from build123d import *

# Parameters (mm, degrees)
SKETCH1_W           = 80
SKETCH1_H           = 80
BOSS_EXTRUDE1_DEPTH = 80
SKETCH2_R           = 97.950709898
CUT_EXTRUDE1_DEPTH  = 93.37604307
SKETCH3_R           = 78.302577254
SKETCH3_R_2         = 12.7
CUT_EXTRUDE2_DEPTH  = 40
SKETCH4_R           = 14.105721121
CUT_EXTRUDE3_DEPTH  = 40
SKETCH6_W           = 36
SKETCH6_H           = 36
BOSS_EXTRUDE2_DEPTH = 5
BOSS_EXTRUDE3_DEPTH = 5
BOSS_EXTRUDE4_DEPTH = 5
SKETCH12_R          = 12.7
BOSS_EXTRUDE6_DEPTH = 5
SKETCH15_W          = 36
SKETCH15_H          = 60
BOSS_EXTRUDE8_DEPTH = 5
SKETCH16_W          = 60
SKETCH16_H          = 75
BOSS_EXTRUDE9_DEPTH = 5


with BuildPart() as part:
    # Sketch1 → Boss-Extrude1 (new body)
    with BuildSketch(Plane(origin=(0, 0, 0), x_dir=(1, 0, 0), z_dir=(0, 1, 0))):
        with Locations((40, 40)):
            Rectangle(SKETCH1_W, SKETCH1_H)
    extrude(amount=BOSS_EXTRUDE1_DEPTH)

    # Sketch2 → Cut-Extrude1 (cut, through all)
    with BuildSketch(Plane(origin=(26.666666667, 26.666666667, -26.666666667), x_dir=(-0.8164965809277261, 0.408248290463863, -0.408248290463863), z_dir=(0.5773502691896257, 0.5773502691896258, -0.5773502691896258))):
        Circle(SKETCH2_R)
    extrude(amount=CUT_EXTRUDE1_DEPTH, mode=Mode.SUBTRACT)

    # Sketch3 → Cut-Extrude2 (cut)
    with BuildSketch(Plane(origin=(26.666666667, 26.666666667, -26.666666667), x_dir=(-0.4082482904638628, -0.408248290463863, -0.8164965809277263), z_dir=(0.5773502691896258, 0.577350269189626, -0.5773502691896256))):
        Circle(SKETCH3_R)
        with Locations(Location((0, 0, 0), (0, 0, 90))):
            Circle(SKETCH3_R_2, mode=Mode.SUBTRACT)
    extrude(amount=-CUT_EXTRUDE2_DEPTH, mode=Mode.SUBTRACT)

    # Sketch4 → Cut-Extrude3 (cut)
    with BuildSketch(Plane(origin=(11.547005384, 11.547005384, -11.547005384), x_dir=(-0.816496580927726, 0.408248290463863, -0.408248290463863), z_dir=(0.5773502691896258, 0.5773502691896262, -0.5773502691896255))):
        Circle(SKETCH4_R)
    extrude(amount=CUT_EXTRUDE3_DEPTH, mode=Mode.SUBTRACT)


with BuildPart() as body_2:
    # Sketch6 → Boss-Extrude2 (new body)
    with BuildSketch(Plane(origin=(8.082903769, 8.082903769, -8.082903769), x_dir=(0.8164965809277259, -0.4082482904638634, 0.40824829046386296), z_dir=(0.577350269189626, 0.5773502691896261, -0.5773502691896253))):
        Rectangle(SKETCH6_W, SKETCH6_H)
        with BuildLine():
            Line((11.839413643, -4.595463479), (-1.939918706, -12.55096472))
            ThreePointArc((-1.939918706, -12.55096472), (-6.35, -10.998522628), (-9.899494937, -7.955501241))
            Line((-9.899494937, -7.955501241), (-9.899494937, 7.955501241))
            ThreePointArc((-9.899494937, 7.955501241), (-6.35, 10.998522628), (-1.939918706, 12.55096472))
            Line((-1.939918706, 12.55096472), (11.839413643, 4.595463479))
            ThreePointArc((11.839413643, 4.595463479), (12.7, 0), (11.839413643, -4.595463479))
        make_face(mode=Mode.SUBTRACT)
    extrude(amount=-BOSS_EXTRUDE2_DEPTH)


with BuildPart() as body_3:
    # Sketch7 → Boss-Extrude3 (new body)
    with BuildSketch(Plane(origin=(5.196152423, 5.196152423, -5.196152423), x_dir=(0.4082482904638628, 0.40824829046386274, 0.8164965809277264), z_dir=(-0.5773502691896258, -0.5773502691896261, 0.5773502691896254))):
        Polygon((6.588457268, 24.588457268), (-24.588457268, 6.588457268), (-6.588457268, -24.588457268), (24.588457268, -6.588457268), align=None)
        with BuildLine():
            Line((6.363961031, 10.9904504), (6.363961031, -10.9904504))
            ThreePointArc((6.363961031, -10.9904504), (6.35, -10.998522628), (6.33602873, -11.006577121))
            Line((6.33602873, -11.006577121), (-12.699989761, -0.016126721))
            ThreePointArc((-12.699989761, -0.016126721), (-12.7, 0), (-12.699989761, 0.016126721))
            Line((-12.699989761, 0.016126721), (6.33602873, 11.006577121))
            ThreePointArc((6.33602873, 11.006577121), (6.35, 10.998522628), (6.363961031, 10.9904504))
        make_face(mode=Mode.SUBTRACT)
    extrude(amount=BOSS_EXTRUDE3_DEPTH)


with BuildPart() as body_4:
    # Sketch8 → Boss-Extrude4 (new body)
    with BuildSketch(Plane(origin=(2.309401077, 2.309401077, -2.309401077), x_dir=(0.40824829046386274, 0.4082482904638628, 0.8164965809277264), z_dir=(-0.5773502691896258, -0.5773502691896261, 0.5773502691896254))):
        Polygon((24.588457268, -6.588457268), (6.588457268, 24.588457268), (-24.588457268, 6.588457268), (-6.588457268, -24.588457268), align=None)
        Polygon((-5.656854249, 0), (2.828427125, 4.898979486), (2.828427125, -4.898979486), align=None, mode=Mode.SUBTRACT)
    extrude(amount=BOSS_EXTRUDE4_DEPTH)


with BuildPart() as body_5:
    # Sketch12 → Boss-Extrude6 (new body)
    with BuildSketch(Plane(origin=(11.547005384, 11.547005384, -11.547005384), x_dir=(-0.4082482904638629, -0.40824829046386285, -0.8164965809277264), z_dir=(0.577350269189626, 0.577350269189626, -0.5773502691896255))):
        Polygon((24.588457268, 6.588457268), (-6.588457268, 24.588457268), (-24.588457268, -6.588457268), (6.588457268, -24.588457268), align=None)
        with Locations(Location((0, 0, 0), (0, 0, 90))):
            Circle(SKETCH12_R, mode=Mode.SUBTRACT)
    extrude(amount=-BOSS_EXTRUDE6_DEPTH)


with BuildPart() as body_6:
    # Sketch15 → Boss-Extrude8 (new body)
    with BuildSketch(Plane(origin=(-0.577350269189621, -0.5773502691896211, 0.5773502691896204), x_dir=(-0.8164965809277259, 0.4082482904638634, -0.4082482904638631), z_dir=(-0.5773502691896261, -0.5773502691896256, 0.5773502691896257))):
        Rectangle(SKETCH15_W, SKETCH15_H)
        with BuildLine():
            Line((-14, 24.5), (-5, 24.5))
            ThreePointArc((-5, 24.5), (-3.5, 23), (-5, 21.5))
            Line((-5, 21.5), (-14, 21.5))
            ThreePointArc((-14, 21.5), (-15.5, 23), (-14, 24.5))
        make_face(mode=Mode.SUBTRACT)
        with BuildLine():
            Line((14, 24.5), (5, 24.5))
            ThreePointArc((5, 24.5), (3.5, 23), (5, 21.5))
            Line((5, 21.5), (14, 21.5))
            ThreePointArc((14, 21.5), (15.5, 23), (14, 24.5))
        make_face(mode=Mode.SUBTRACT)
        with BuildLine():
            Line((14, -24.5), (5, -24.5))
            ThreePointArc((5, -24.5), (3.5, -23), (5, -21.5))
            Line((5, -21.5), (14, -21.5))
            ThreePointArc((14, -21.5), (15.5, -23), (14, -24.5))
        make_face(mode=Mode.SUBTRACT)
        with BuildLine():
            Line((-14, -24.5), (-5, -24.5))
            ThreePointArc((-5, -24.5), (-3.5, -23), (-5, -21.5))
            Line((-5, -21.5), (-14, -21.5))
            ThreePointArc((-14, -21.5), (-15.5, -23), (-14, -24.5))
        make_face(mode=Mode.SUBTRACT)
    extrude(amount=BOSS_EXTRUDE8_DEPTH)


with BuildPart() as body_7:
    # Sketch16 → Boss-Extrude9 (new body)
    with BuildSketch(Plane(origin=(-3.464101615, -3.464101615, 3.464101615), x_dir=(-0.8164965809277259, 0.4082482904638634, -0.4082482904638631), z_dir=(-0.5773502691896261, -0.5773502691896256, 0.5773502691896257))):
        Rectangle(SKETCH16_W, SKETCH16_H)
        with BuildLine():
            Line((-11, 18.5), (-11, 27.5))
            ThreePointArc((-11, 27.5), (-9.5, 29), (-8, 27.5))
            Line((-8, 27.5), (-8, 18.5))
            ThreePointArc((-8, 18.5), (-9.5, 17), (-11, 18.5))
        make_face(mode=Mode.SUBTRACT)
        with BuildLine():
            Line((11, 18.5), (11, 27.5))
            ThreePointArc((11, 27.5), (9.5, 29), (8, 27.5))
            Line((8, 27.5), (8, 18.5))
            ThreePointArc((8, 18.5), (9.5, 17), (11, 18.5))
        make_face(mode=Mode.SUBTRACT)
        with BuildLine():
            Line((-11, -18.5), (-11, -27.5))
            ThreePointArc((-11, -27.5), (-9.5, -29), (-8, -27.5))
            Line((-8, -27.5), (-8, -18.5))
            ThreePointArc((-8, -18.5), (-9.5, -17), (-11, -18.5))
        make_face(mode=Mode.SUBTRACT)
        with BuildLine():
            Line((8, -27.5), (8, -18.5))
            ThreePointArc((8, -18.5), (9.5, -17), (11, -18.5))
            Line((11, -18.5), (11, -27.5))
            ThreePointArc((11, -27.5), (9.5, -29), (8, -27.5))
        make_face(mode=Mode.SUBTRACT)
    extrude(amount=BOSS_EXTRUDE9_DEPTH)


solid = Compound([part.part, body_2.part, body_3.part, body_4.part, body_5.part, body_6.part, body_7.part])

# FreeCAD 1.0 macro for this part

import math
import FreeCAD as App
import Part
import Sketcher

V = App.Vector
Q = App.Units.Quantity

doc = App.newDocument("Part")
body = doc.addObject("PartDesign::Body", "Body")

# Sketch on XZ plane
sketch1 = body.newObject("Sketcher::SketchObject", "Sketch")
sketch1.AttachmentSupport = (doc.getObject("XZ_Plane"), [""])
sketch1.MapMode = "FlatFace"
sketch1.addGeometry(Part.LineSegment(V(0, -80, 0), V(0, 0, 0)), False)
sketch1.addGeometry(Part.LineSegment(V(0, 0, 0), V(80, 0, 0)), False)
sketch1.addGeometry(Part.LineSegment(V(80, 0, 0), V(80, -80, 0)), False)
sketch1.addGeometry(Part.LineSegment(V(80, -80, 0), V(0, -80, 0)), False)
sketch1.addConstraint(Sketcher.Constraint("Coincident", 0, 2, 1, 1))
sketch1.addConstraint(Sketcher.Constraint("Coincident", 1, 2, 2, 1))
sketch1.addConstraint(Sketcher.Constraint("Coincident", 2, 2, 3, 1))
sketch1.addConstraint(Sketcher.Constraint("Coincident", 3, 2, 0, 1))
sketch1.addConstraint(Sketcher.Constraint("Vertical", 0))
sketch1.addConstraint(Sketcher.Constraint("Horizontal", 1))
sketch1.addConstraint(Sketcher.Constraint("Vertical", 2))
sketch1.addConstraint(Sketcher.Constraint("Horizontal", 3))
sketch1.addConstraint(Sketcher.Constraint("Coincident", 0, 2, -1, 1))
sketch1.addConstraint(Sketcher.Constraint("Equal", 3, 0))
sketch1.addConstraint(Sketcher.Constraint("DistanceX", 1, 1, 1, 2, Q("80 mm")))
pad1 = body.newObject("PartDesign::Pad", "Pad")
pad1.Profile = sketch1
pad1.Length = 80
pad1.Reversed = True

# Sketch on an angled plane
sketch2 = body.newObject("Sketcher::SketchObject", "Sketch001")
sketch2.Placement = App.Placement(V(26.666667, 26.666667, -26.666667), App.Rotation(V(-0.816496581, 0.40824829, -0.40824829), V(0, 0.707106781, 0.707106781), V(0.577350269, 0.577350269, -0.577350269), "ZXY"))
sketch2.addGeometry(Part.Circle(V(0, 0, 0), V(0, 0, 1), 98), False)
sketch2.addConstraint(Sketcher.Constraint("Coincident", 0, 3, -1, 1))
sketch2.addConstraint(Sketcher.Constraint("Diameter", 0, Q("195.90142 mm")))
pocket1 = body.newObject("PartDesign::Pocket", "Pocket")
pocket1.Profile = sketch2
pocket1.Type = "ThroughAll"
pocket1.Reversed = True

# Sketch on an angled plane
sketch3 = body.newObject("Sketcher::SketchObject", "Sketch002")
sketch3.Placement = App.Placement(V(26.666667, 26.666667, -26.666667), App.Rotation(V(-0.40824829, -0.40824829, -0.816496581), V(-0.707106781, 0.707106781, 0), V(0.577350269, 0.577350269, -0.577350269), "ZXY"))
sketch3.addGeometry(Part.Circle(V(0, 0, 0), V(0, 0, 1), 78), False)
sketch3.addGeometry(Part.Circle(V(0, 0, 0), V(0, 0, 1), 13), False)
sketch3.addConstraint(Sketcher.Constraint("Coincident", 0, 3, -1, 1))
sketch3.addConstraint(Sketcher.Constraint("Coincident", 1, 3, -1, 1))
sketch3.addConstraint(Sketcher.Constraint("Diameter", 1, Q("25.4 mm")))
sketch3.addConstraint(Sketcher.Constraint("Diameter", 0, Q("156.605155 mm")))
pocket2 = body.newObject("PartDesign::Pocket", "Pocket001")
pocket2.Profile = sketch3
pocket2.Length = 40

# Sketch on an angled plane
sketch4 = body.newObject("Sketcher::SketchObject", "Sketch003")
sketch4.Placement = App.Placement(V(11.547005, 11.547005, -11.547005), App.Rotation(V(-0.816496581, 0.40824829, -0.40824829), V(0, 0.707106781, 0.707106781), V(0.577350269, 0.577350269, -0.577350269), "ZXY"))
sketch4.addGeometry(Part.Circle(V(0, 0, 0), V(0, 0, 1), 14), False)
sketch4.addConstraint(Sketcher.Constraint("Coincident", 0, 3, -1, 1))
sketch4.addConstraint(Sketcher.Constraint("Diameter", 0, Q("28.211442 mm")))
pocket3 = body.newObject("PartDesign::Pocket", "Pocket002")
pocket3.Profile = sketch4
pocket3.Length = 40
pocket3.Reversed = True
body2 = doc.addObject("PartDesign::Body", "Body001")

# Sketch on an angled plane
sketch5 = body2.newObject("Sketcher::SketchObject", "Sketch004")
sketch5.Placement = App.Placement(V(8.082904, 8.082904, -8.082904), App.Rotation(V(0.816496581, -0.40824829, 0.40824829), V(0, -0.707106781, -0.707106781), V(0.577350269, 0.577350269, -0.577350269), "ZXY"))
sketch5.addGeometry(Part.LineSegment(V(-18, 18, 0), V(-18, -18, 0)), False)
sketch5.addGeometry(Part.LineSegment(V(-18, -18, 0), V(18, -18, 0)), False)
sketch5.addGeometry(Part.LineSegment(V(18, -18, 0), V(18, 18, 0)), False)
sketch5.addGeometry(Part.LineSegment(V(18, 18, 0), V(-18, 18, 0)), False)
sketch5.addGeometry(Part.ArcOfCircle(Part.Circle(V(0, 0, 0), V(0, 0, 1), 13), math.radians(-21), math.radians(21)), False)
sketch5.addGeometry(Part.LineSegment(V(12, -5, 0), V(-2, -13, 0)), False)
sketch5.addGeometry(Part.ArcOfCircle(Part.Circle(V(0, 0, 0), V(0, 0, 1), 13), math.radians(-141), math.radians(-99)), False)
sketch5.addGeometry(Part.LineSegment(V(-10, -8, 0), V(-10, 8, 0)), False)
sketch5.addGeometry(Part.ArcOfCircle(Part.Circle(V(0, 0, 0), V(0, 0, 1), 13), math.radians(99), math.radians(141)), False)
sketch5.addGeometry(Part.LineSegment(V(-2, 13, 0), V(12, 5, 0)), False)
sketch5.addConstraint(Sketcher.Constraint("Coincident", 0, 2, 1, 1))
sketch5.addConstraint(Sketcher.Constraint("Coincident", 1, 2, 2, 1))
sketch5.addConstraint(Sketcher.Constraint("Coincident", 2, 2, 3, 1))
sketch5.addConstraint(Sketcher.Constraint("Coincident", 3, 2, 0, 1))
sketch5.addConstraint(Sketcher.Constraint("Coincident", 4, 1, 5, 1))
sketch5.addConstraint(Sketcher.Constraint("Coincident", 5, 2, 6, 2))
sketch5.addConstraint(Sketcher.Constraint("Coincident", 6, 1, 7, 1))
sketch5.addConstraint(Sketcher.Constraint("Coincident", 7, 2, 8, 2))
sketch5.addConstraint(Sketcher.Constraint("Coincident", 8, 1, 9, 1))
sketch5.addConstraint(Sketcher.Constraint("Coincident", 9, 2, 4, 2))
sketch5.addConstraint(Sketcher.Constraint("Vertical", 0))
sketch5.addConstraint(Sketcher.Constraint("Horizontal", 1))
sketch5.addConstraint(Sketcher.Constraint("Vertical", 2))
sketch5.addConstraint(Sketcher.Constraint("Horizontal", 3))
sketch5.addConstraint(Sketcher.Constraint("Vertical", 7))
sketch5.addConstraint(Sketcher.Constraint("Coincident", 4, 3, -1, 1))
sketch5.addConstraint(Sketcher.Constraint("Coincident", 6, 3, -1, 1))
sketch5.addConstraint(Sketcher.Constraint("Coincident", 8, 3, -1, 1))
sketch5.addConstraint(Sketcher.Constraint("Equal", 4, 6))
sketch5.addConstraint(Sketcher.Constraint("Equal", 6, 8))
sketch5.addConstraint(Sketcher.Constraint("Symmetric", 0, 2, 2, 2, -1, 1))
sketch5.addConstraint(Sketcher.Constraint("Vertical", 5, 2, 8, 1))
sketch5.addConstraint(Sketcher.Constraint("Vertical", 4, 1, 9, 2))
sketch5.addConstraint(Sketcher.Constraint("Equal", 3, 0))
sketch5.addConstraint(Sketcher.Constraint("Radius", 4, Q("12.7 mm")))
sketch5.addConstraint(Sketcher.Constraint("DistanceX", 1, 1, 1, 2, Q("36 mm")))
sketch5.addConstraint(Sketcher.Constraint("Angle", 5, Q("-150 deg")))
sketch5.addConstraint(Sketcher.Constraint("DistanceY", 6, 1, -1, 1, Q("7.955501 mm")))
sketch5.addConstraint(Sketcher.Constraint("DistanceY", 5, 2, 4, 1, Q("7.955501 mm")))
pad2 = body2.newObject("PartDesign::Pad", "Pad001")
pad2.Profile = sketch5
pad2.Length = 5
pad2.Reversed = True
body3 = doc.addObject("PartDesign::Body", "Body002")

# Sketch on an angled plane
sketch6 = body3.newObject("Sketcher::SketchObject", "Sketch005")
sketch6.Placement = App.Placement(V(5.196152, 5.196152, -5.196152), App.Rotation(V(0.40824829, 0.40824829, 0.816496581), V(-0.707106781, 0.707106781, 0), V(-0.577350269, -0.577350269, 0.577350269), "ZXY"))
sketch6.addGeometry(Part.LineSegment(V(6.588457, 24.588457, 0), V(-24.588457, 6.588457, 0)), False)
sketch6.addGeometry(Part.LineSegment(V(-24.588457, 6.588457, 0), V(-6.588457, -24.588457, 0)), False)
sketch6.addGeometry(Part.LineSegment(V(-6.588457, -24.588457, 0), V(24.588457, -6.588457, 0)), False)
sketch6.addGeometry(Part.LineSegment(V(24.588457, -6.588457, 0), V(6.588457, 24.588457, 0)), False)
sketch6.addGeometry(Part.ArcOfCircle(Part.Circle(V(0.000127, 0.00022, 0), V(0, 0, 1), 12.699746), math.radians(59.927244), math.radians(60.072758)), False)
sketch6.addGeometry(Part.LineSegment(V(6.363961, 10.99045, 0), V(6.363961, -10.99045, 0)), False)
sketch6.addGeometry(Part.ArcOfCircle(Part.Circle(V(0.000127, -0.00022, 0), V(0, 0, 1), 12.699746), math.radians(-60.072758), math.radians(-59.927244)), False)
sketch6.addGeometry(Part.LineSegment(V(6.336029, -11.006577, 0), V(-12.69999, -0.016127, 0)), False)
sketch6.addGeometry(Part.ArcOfCircle(Part.Circle(V(0.000031, 0, 0), V(0, 0, 1), 12.700031), math.radians(179.927245), math.radians(180.072755)), False)
sketch6.addGeometry(Part.LineSegment(V(-12.69999, 0.016127, 0), V(6.336029, 11.006577, 0)), False)
sketch6.addConstraint(Sketcher.Constraint("Coincident", 0, 2, 1, 1))
sketch6.addConstraint(Sketcher.Constraint("Coincident", 1, 2, 2, 1))
sketch6.addConstraint(Sketcher.Constraint("Coincident", 2, 2, 3, 1))
sketch6.addConstraint(Sketcher.Constraint("Coincident", 3, 2, 0, 1))
sketch6.addConstraint(Sketcher.Constraint("Coincident", 4, 1, 5, 1))
sketch6.addConstraint(Sketcher.Constraint("Coincident", 5, 2, 6, 2))
sketch6.addConstraint(Sketcher.Constraint("Coincident", 6, 1, 7, 1))
sketch6.addConstraint(Sketcher.Constraint("Coincident", 7, 2, 8, 2))
sketch6.addConstraint(Sketcher.Constraint("Coincident", 8, 1, 9, 1))
sketch6.addConstraint(Sketcher.Constraint("Coincident", 9, 2, 4, 2))
sketch6.addConstraint(Sketcher.Constraint("Vertical", 5))
sketch6.addConstraint(Sketcher.Constraint("Equal", 4, 6))
sketch6.addConstraint(Sketcher.Constraint("Symmetric", 0, 2, 2, 2, -1, 1))
sketch6.addConstraint(Sketcher.Constraint("Symmetric", 1, 2, 3, 2, -1, 1))
sketch6.addConstraint(Sketcher.Constraint("Symmetric", 4, 3, 6, 3, -1))
sketch6.addConstraint(Sketcher.Constraint("PointOnObject", 8, 3, -1))
sketch6.addConstraint(Sketcher.Constraint("Perpendicular", 0, 1))
sketch6.addConstraint(Sketcher.Constraint("Perpendicular", 3, 9))
sketch6.addConstraint(Sketcher.Constraint("Vertical", 6, 1, 9, 2))
sketch6.addConstraint(Sketcher.Constraint("Equal", 0, 1))
sketch6.addConstraint(Sketcher.Constraint("Equal", 7, 9))
sketch6.addConstraint(Sketcher.Constraint("Angle", 0, Q("-150 deg")))
sketch6.addConstraint(Sketcher.Constraint("Distance", 0, Q("36 mm")))
sketch6.addConstraint(Sketcher.Constraint("Radius", 8, Q("12.700031 mm")))
sketch6.addConstraint(Sketcher.Constraint("DistanceY", 5, 2, 5, 1, Q("21.980901 mm")))
sketch6.addConstraint(Sketcher.Constraint("Radius", 4, Q("12.699746 mm")))
sketch6.addConstraint(Sketcher.Constraint("Distance", 7, Q("21.980901 mm")))
sketch6.addConstraint(Sketcher.Constraint("DistanceX", 6, 3, 6, 1, Q("6.335902 mm")))
sketch6.addConstraint(Sketcher.Constraint("DistanceY", -1, 1, 4, 3, Q("0.00022 mm")))
sketch6.addConstraint(Sketcher.Constraint("DistanceX", -1, 1, 4, 1, Q("6.363961 mm")))
pad3 = body3.newObject("PartDesign::Pad", "Pad002")
pad3.Profile = sketch6
pad3.Length = 5
body4 = doc.addObject("PartDesign::Body", "Body003")

# Sketch on an angled plane
sketch7 = body4.newObject("Sketcher::SketchObject", "Sketch006")
sketch7.Placement = App.Placement(V(2.309401, 2.309401, -2.309401), App.Rotation(V(0.40824829, 0.40824829, 0.816496581), V(-0.707106781, 0.707106781, 0), V(-0.577350269, -0.577350269, 0.577350269), "ZXY"))
sketch7.addGeometry(Part.LineSegment(V(25, -7, 0), V(7, 25, 0)), False)
sketch7.addGeometry(Part.LineSegment(V(7, 25, 0), V(-25, 7, 0)), False)
sketch7.addGeometry(Part.LineSegment(V(-25, 7, 0), V(-7, -25, 0)), False)
sketch7.addGeometry(Part.LineSegment(V(-7, -25, 0), V(25, -7, 0)), False)
sketch7.addGeometry(Part.LineSegment(V(3, -5, 0), V(-6, 0, 0)), False)
sketch7.addGeometry(Part.LineSegment(V(-6, 0, 0), V(3, 5, 0)), False)
sketch7.addGeometry(Part.LineSegment(V(3, 5, 0), V(3, -5, 0)), False)
sketch7.addConstraint(Sketcher.Constraint("Coincident", 0, 2, 1, 1))
sketch7.addConstraint(Sketcher.Constraint("Coincident", 1, 2, 2, 1))
sketch7.addConstraint(Sketcher.Constraint("Coincident", 2, 2, 3, 1))
sketch7.addConstraint(Sketcher.Constraint("Coincident", 3, 2, 0, 1))
sketch7.addConstraint(Sketcher.Constraint("Coincident", 4, 2, 5, 1))
sketch7.addConstraint(Sketcher.Constraint("Coincident", 5, 2, 6, 1))
sketch7.addConstraint(Sketcher.Constraint("Coincident", 6, 2, 4, 1))
sketch7.addConstraint(Sketcher.Constraint("Vertical", 6))
sketch7.addConstraint(Sketcher.Constraint("Symmetric", 0, 2, 2, 2, -1, 1))
sketch7.addConstraint(Sketcher.Constraint("Symmetric", 1, 2, 3, 2, -1, 1))
sketch7.addConstraint(Sketcher.Constraint("PointOnObject", 4, 2, -1))
sketch7.addConstraint(Sketcher.Constraint("Perpendicular", 0, 1))
sketch7.addConstraint(Sketcher.Constraint("Parallel", 3, 5))
sketch7.addConstraint(Sketcher.Constraint("Equal", 0, 1))
sketch7.addConstraint(Sketcher.Constraint("Equal", 4, 5))
sketch7.addConstraint(Sketcher.Constraint("Angle", 0, Q("120 deg")))
sketch7.addConstraint(Sketcher.Constraint("Distance", 0, Q("36 mm")))
sketch7.addConstraint(Sketcher.Constraint("DistanceY", 6, 2, 6, 1, Q("9.797959 mm")))
sketch7.addConstraint(Sketcher.Constraint("DistanceX", 4, 2, 0, 2, Q("12.245312 mm")))
pad4 = body4.newObject("PartDesign::Pad", "Pad003")
pad4.Profile = sketch7
pad4.Length = 5
body5 = doc.addObject("PartDesign::Body", "Body004")

# Sketch on an angled plane
sketch8 = body5.newObject("Sketcher::SketchObject", "Sketch007")
sketch8.Placement = App.Placement(V(11.547005, 11.547005, -11.547005), App.Rotation(V(-0.40824829, -0.40824829, -0.816496581), V(-0.707106781, 0.707106781, 0), V(0.577350269, 0.577350269, -0.577350269), "ZXY"))
sketch8.addGeometry(Part.LineSegment(V(25, 7, 0), V(-7, 25, 0)), False)
sketch8.addGeometry(Part.LineSegment(V(-7, 25, 0), V(-25, -7, 0)), False)
sketch8.addGeometry(Part.LineSegment(V(-25, -7, 0), V(7, -25, 0)), False)
sketch8.addGeometry(Part.LineSegment(V(7, -25, 0), V(25, 7, 0)), False)
sketch8.addGeometry(Part.Circle(V(0, 0, 0), V(0, 0, 1), 13), False)
sketch8.addConstraint(Sketcher.Constraint("Coincident", 0, 2, 1, 1))
sketch8.addConstraint(Sketcher.Constraint("Coincident", 1, 2, 2, 1))
sketch8.addConstraint(Sketcher.Constraint("Coincident", 2, 2, 3, 1))
sketch8.addConstraint(Sketcher.Constraint("Coincident", 3, 2, 0, 1))
sketch8.addConstraint(Sketcher.Constraint("Coincident", 4, 3, -1, 1))
sketch8.addConstraint(Sketcher.Constraint("Symmetric", 0, 2, 2, 2, -1, 1))
sketch8.addConstraint(Sketcher.Constraint("Symmetric", 1, 2, 3, 2, -1, 1))
sketch8.addConstraint(Sketcher.Constraint("Perpendicular", 0, 1))
sketch8.addConstraint(Sketcher.Constraint("Equal", 0, 1))
sketch8.addConstraint(Sketcher.Constraint("Diameter", 4, Q("25.4 mm")))
sketch8.addConstraint(Sketcher.Constraint("Angle", 0, Q("150 deg")))
sketch8.addConstraint(Sketcher.Constraint("Distance", 0, Q("36 mm")))
pad5 = body5.newObject("PartDesign::Pad", "Pad004")
pad5.Profile = sketch8
pad5.Length = 5
pad5.Reversed = True
body6 = doc.addObject("PartDesign::Body", "Body005")

# Sketch on an angled plane
sketch9 = body6.newObject("Sketcher::SketchObject", "Sketch008")
sketch9.Placement = App.Placement(V(-0.57735, -0.57735, 0.57735), App.Rotation(V(-0.816496581, 0.40824829, -0.40824829), V(0, -0.707106781, -0.707106781), V(-0.577350269, -0.577350269, 0.577350269), "ZXY"))
sketch9.addGeometry(Part.LineSegment(V(-18, 30, 0), V(-18, -30, 0)), False)
sketch9.addGeometry(Part.LineSegment(V(-18, -30, 0), V(18, -30, 0)), False)
sketch9.addGeometry(Part.LineSegment(V(18, -30, 0), V(18, 30, 0)), False)
sketch9.addGeometry(Part.LineSegment(V(18, 30, 0), V(-18, 30, 0)), False)
sketch9.addGeometry(Part.LineSegment(V(-5, -24.5, 0), V(-14, -24.5, 0)), False)
sketch9.addGeometry(Part.ArcOfCircle(Part.Circle(V(-14, -23, 0), V(0, 0, 1), 1.5), math.radians(90), math.radians(270)), False)
sketch9.addGeometry(Part.LineSegment(V(-14, -21.5, 0), V(-5, -21.5, 0)), False)
sketch9.addGeometry(Part.ArcOfCircle(Part.Circle(V(-5, -23, 0), V(0, 0, 1), 1.5), math.radians(-90), math.radians(90)), False)
sketch9.addGeometry(Part.ArcOfCircle(Part.Circle(V(14, -23, 0), V(0, 0, 1), 1.5), math.radians(-90), math.radians(90)), False)
sketch9.addGeometry(Part.LineSegment(V(14, -24.5, 0), V(5, -24.5, 0)), False)
sketch9.addGeometry(Part.ArcOfCircle(Part.Circle(V(5, -23, 0), V(0, 0, 1), 1.5), math.radians(90), math.radians(270)), False)
sketch9.addGeometry(Part.LineSegment(V(5, -21.5, 0), V(14, -21.5, 0)), False)
sketch9.addGeometry(Part.ArcOfCircle(Part.Circle(V(-14, 23, 0), V(0, 0, 1), 1.5), math.radians(90), math.radians(270)), False)
sketch9.addGeometry(Part.LineSegment(V(-14, 24.5, 0), V(-5, 24.5, 0)), False)
sketch9.addGeometry(Part.ArcOfCircle(Part.Circle(V(-5, 23, 0), V(0, 0, 1), 1.5), math.radians(-90), math.radians(90)), False)
sketch9.addGeometry(Part.LineSegment(V(-5, 21.5, 0), V(-14, 21.5, 0)), False)
sketch9.addGeometry(Part.LineSegment(V(5, 24.5, 0), V(14, 24.5, 0)), False)
sketch9.addGeometry(Part.ArcOfCircle(Part.Circle(V(14, 23, 0), V(0, 0, 1), 1.5), math.radians(-90), math.radians(90)), False)
sketch9.addGeometry(Part.LineSegment(V(14, 21.5, 0), V(5, 21.5, 0)), False)
sketch9.addGeometry(Part.ArcOfCircle(Part.Circle(V(5, 23, 0), V(0, 0, 1), 1.5), math.radians(90), math.radians(270)), False)
sketch9.addConstraint(Sketcher.Constraint("Coincident", 0, 2, 1, 1))
sketch9.addConstraint(Sketcher.Constraint("Coincident", 1, 2, 2, 1))
sketch9.addConstraint(Sketcher.Constraint("Coincident", 2, 2, 3, 1))
sketch9.addConstraint(Sketcher.Constraint("Coincident", 3, 2, 0, 1))
sketch9.addConstraint(Sketcher.Constraint("Tangent", 4, 2, 5, 2))
sketch9.addConstraint(Sketcher.Constraint("Tangent", 5, 1, 6, 1))
sketch9.addConstraint(Sketcher.Constraint("Tangent", 6, 2, 7, 2))
sketch9.addConstraint(Sketcher.Constraint("Tangent", 7, 1, 4, 1))
sketch9.addConstraint(Sketcher.Constraint("Tangent", 8, 1, 9, 1))
sketch9.addConstraint(Sketcher.Constraint("Tangent", 9, 2, 10, 2))
sketch9.addConstraint(Sketcher.Constraint("Tangent", 10, 1, 11, 1))
sketch9.addConstraint(Sketcher.Constraint("Tangent", 11, 2, 8, 2))
sketch9.addConstraint(Sketcher.Constraint("Tangent", 12, 1, 13, 1))
sketch9.addConstraint(Sketcher.Constraint("Tangent", 13, 2, 14, 2))
sketch9.addConstraint(Sketcher.Constraint("Tangent", 14, 1, 15, 1))
sketch9.addConstraint(Sketcher.Constraint("Tangent", 15, 2, 12, 2))
sketch9.addConstraint(Sketcher.Constraint("Tangent", 16, 2, 17, 2))
sketch9.addConstraint(Sketcher.Constraint("Tangent", 17, 1, 18, 1))
sketch9.addConstraint(Sketcher.Constraint("Tangent", 18, 2, 19, 2))
sketch9.addConstraint(Sketcher.Constraint("Tangent", 19, 1, 16, 1))
sketch9.addConstraint(Sketcher.Constraint("Vertical", 0))
sketch9.addConstraint(Sketcher.Constraint("Horizontal", 1))
sketch9.addConstraint(Sketcher.Constraint("Vertical", 2))
sketch9.addConstraint(Sketcher.Constraint("Horizontal", 3))
sketch9.addConstraint(Sketcher.Constraint("Horizontal", 4))
sketch9.addConstraint(Sketcher.Constraint("Horizontal", 6))
sketch9.addConstraint(Sketcher.Constraint("Horizontal", 9))
sketch9.addConstraint(Sketcher.Constraint("Horizontal", 11))
sketch9.addConstraint(Sketcher.Constraint("Horizontal", 13))
sketch9.addConstraint(Sketcher.Constraint("Horizontal", 15))
sketch9.addConstraint(Sketcher.Constraint("Horizontal", 16))
sketch9.addConstraint(Sketcher.Constraint("Horizontal", 18))
sketch9.addConstraint(Sketcher.Constraint("Equal", 7, 8))
sketch9.addConstraint(Sketcher.Constraint("Equal", 10, 12))
sketch9.addConstraint(Sketcher.Constraint("Equal", 14, 17))
sketch9.addConstraint(Sketcher.Constraint("Symmetric", 8, 3, 12, 3, -1, 1))
sketch9.addConstraint(Sketcher.Constraint("Symmetric", 5, 3, 17, 3, -1, 1))
sketch9.addConstraint(Sketcher.Constraint("Symmetric", 0, 2, 2, 2, -1, 1))
sketch9.addConstraint(Sketcher.Constraint("Symmetric", 5, 3, 8, 3, -2))
sketch9.addConstraint(Sketcher.Constraint("Vertical", 7, 3, 14, 3))
sketch9.addConstraint(Sketcher.Constraint("Vertical", 10, 3, 19, 3))
sketch9.addConstraint(Sketcher.Constraint("Equal", 6, 9))
sketch9.addConstraint(Sketcher.Constraint("Radius", 5, Q("1.5 mm")))
sketch9.addConstraint(Sketcher.Constraint("DistanceX", 1, 1, 1, 2, Q("36 mm")))
sketch9.addConstraint(Sketcher.Constraint("DistanceX", 4, 2, 4, 1, Q("9 mm")))
sketch9.addConstraint(Sketcher.Constraint("DistanceY", 0, 2, 0, 1, Q("60 mm")))
sketch9.addConstraint(Sketcher.Constraint("DistanceX", 5, 3, -1, 1, Q("14 mm")))
sketch9.addConstraint(Sketcher.Constraint("DistanceY", 5, 3, -1, 1, Q("23 mm")))
pad6 = body6.newObject("PartDesign::Pad", "Pad005")
pad6.Profile = sketch9
pad6.Length = 5
body7 = doc.addObject("PartDesign::Body", "Body006")

# Sketch on an angled plane
sketch10 = body7.newObject("Sketcher::SketchObject", "Sketch009")
sketch10.Placement = App.Placement(V(-3.464102, -3.464102, 3.464102), App.Rotation(V(-0.816496581, 0.40824829, -0.40824829), V(0, -0.707106781, -0.707106781), V(-0.577350269, -0.577350269, 0.577350269), "ZXY"))
sketch10.addGeometry(Part.LineSegment(V(-30, 37.5, 0), V(-30, -37.5, 0)), False)
sketch10.addGeometry(Part.LineSegment(V(-30, -37.5, 0), V(30, -37.5, 0)), False)
sketch10.addGeometry(Part.LineSegment(V(30, -37.5, 0), V(30, 37.5, 0)), False)
sketch10.addGeometry(Part.LineSegment(V(30, 37.5, 0), V(-30, 37.5, 0)), False)
sketch10.addGeometry(Part.LineSegment(V(-11, -27.5, 0), V(-11, -18.5, 0)), False)
sketch10.addGeometry(Part.ArcOfCircle(Part.Circle(V(-9.5, -18.5, 0), V(0, 0, 1), 1.5), math.radians(0), math.radians(180)), False)
sketch10.addGeometry(Part.LineSegment(V(-8, -18.5, 0), V(-8, -27.5, 0)), False)
sketch10.addGeometry(Part.ArcOfCircle(Part.Circle(V(-9.5, -27.5, 0), V(0, 0, 1), 1.5), math.radians(180), math.radians(360)), False)
sketch10.addGeometry(Part.ArcOfCircle(Part.Circle(V(9.5, -27.5, 0), V(0, 0, 1), 1.5), math.radians(180), math.radians(360)), False)
sketch10.addGeometry(Part.LineSegment(V(8, -27.5, 0), V(8, -18.5, 0)), False)
sketch10.addGeometry(Part.ArcOfCircle(Part.Circle(V(9.5, -18.5, 0), V(0, 0, 1), 1.5), math.radians(0), math.radians(180)), False)
sketch10.addGeometry(Part.LineSegment(V(11, -18.5, 0), V(11, -27.5, 0)), False)
sketch10.addGeometry(Part.ArcOfCircle(Part.Circle(V(-9.5, 18.5, 0), V(0, 0, 1), 1.5), math.radians(180), math.radians(360)), False)
sketch10.addGeometry(Part.LineSegment(V(-11, 18.5, 0), V(-11, 27.5, 0)), False)
sketch10.addGeometry(Part.ArcOfCircle(Part.Circle(V(-9.5, 27.5, 0), V(0, 0, 1), 1.5), math.radians(0), math.radians(180)), False)
sketch10.addGeometry(Part.LineSegment(V(-8, 27.5, 0), V(-8, 18.5, 0)), False)
sketch10.addGeometry(Part.LineSegment(V(11, 27.5, 0), V(11, 18.5, 0)), False)
sketch10.addGeometry(Part.ArcOfCircle(Part.Circle(V(9.5, 18.5, 0), V(0, 0, 1), 1.5), math.radians(180), math.radians(360)), False)
sketch10.addGeometry(Part.LineSegment(V(8, 18.5, 0), V(8, 27.5, 0)), False)
sketch10.addGeometry(Part.ArcOfCircle(Part.Circle(V(9.5, 27.5, 0), V(0, 0, 1), 1.5), math.radians(0), math.radians(180)), False)
sketch10.addConstraint(Sketcher.Constraint("Coincident", 0, 2, 1, 1))
sketch10.addConstraint(Sketcher.Constraint("Coincident", 1, 2, 2, 1))
sketch10.addConstraint(Sketcher.Constraint("Coincident", 2, 2, 3, 1))
sketch10.addConstraint(Sketcher.Constraint("Coincident", 3, 2, 0, 1))
sketch10.addConstraint(Sketcher.Constraint("Tangent", 4, 2, 5, 2))
sketch10.addConstraint(Sketcher.Constraint("Tangent", 5, 1, 6, 1))
sketch10.addConstraint(Sketcher.Constraint("Tangent", 6, 2, 7, 2))
sketch10.addConstraint(Sketcher.Constraint("Tangent", 7, 1, 4, 1))
sketch10.addConstraint(Sketcher.Constraint("Tangent", 8, 1, 9, 1))
sketch10.addConstraint(Sketcher.Constraint("Tangent", 9, 2, 10, 2))
sketch10.addConstraint(Sketcher.Constraint("Tangent", 10, 1, 11, 1))
sketch10.addConstraint(Sketcher.Constraint("Tangent", 11, 2, 8, 2))
sketch10.addConstraint(Sketcher.Constraint("Tangent", 12, 1, 13, 1))
sketch10.addConstraint(Sketcher.Constraint("Tangent", 13, 2, 14, 2))
sketch10.addConstraint(Sketcher.Constraint("Tangent", 14, 1, 15, 1))
sketch10.addConstraint(Sketcher.Constraint("Tangent", 15, 2, 12, 2))
sketch10.addConstraint(Sketcher.Constraint("Tangent", 16, 2, 17, 2))
sketch10.addConstraint(Sketcher.Constraint("Tangent", 17, 1, 18, 1))
sketch10.addConstraint(Sketcher.Constraint("Tangent", 18, 2, 19, 2))
sketch10.addConstraint(Sketcher.Constraint("Tangent", 19, 1, 16, 1))
sketch10.addConstraint(Sketcher.Constraint("Vertical", 0))
sketch10.addConstraint(Sketcher.Constraint("Horizontal", 1))
sketch10.addConstraint(Sketcher.Constraint("Vertical", 2))
sketch10.addConstraint(Sketcher.Constraint("Horizontal", 3))
sketch10.addConstraint(Sketcher.Constraint("Vertical", 4))
sketch10.addConstraint(Sketcher.Constraint("Vertical", 6))
sketch10.addConstraint(Sketcher.Constraint("Vertical", 9))
sketch10.addConstraint(Sketcher.Constraint("Vertical", 11))
sketch10.addConstraint(Sketcher.Constraint("Vertical", 13))
sketch10.addConstraint(Sketcher.Constraint("Vertical", 15))
sketch10.addConstraint(Sketcher.Constraint("Vertical", 16))
sketch10.addConstraint(Sketcher.Constraint("Vertical", 18))
sketch10.addConstraint(Sketcher.Constraint("Equal", 7, 8))
sketch10.addConstraint(Sketcher.Constraint("Equal", 10, 12))
sketch10.addConstraint(Sketcher.Constraint("Equal", 14, 17))
sketch10.addConstraint(Sketcher.Constraint("Symmetric", 10, 3, 12, 3, -1, 1))
sketch10.addConstraint(Sketcher.Constraint("Symmetric", 5, 3, 17, 3, -1, 1))
sketch10.addConstraint(Sketcher.Constraint("Symmetric", 0, 2, 2, 2, -1, 1))
sketch10.addConstraint(Sketcher.Constraint("Symmetric", 7, 3, 8, 3, -2))
sketch10.addConstraint(Sketcher.Constraint("Horizontal", 5, 3, 10, 3))
sketch10.addConstraint(Sketcher.Constraint("Horizontal", 14, 3, 19, 3))
sketch10.addConstraint(Sketcher.Constraint("Equal", 11, 13))
sketch10.addConstraint(Sketcher.Constraint("Radius", 5, Q("1.5 mm")))
sketch10.addConstraint(Sketcher.Constraint("DistanceX", 1, 1, 1, 2, Q("60 mm")))
sketch10.addConstraint(Sketcher.Constraint("DistanceY", 0, 2, 0, 1, Q("75 mm")))
sketch10.addConstraint(Sketcher.Constraint("DistanceY", 4, 1, 4, 2, Q("9 mm")))
sketch10.addConstraint(Sketcher.Constraint("DistanceX", 4, 2, -1, 1, Q("11 mm")))
sketch10.addConstraint(Sketcher.Constraint("DistanceY", 5, 3, 12, 3, Q("37 mm")))
pad7 = body7.newObject("PartDesign::Pad", "Pad006")
pad7.Profile = sketch10
pad7.Length = 5

doc.recompute()
